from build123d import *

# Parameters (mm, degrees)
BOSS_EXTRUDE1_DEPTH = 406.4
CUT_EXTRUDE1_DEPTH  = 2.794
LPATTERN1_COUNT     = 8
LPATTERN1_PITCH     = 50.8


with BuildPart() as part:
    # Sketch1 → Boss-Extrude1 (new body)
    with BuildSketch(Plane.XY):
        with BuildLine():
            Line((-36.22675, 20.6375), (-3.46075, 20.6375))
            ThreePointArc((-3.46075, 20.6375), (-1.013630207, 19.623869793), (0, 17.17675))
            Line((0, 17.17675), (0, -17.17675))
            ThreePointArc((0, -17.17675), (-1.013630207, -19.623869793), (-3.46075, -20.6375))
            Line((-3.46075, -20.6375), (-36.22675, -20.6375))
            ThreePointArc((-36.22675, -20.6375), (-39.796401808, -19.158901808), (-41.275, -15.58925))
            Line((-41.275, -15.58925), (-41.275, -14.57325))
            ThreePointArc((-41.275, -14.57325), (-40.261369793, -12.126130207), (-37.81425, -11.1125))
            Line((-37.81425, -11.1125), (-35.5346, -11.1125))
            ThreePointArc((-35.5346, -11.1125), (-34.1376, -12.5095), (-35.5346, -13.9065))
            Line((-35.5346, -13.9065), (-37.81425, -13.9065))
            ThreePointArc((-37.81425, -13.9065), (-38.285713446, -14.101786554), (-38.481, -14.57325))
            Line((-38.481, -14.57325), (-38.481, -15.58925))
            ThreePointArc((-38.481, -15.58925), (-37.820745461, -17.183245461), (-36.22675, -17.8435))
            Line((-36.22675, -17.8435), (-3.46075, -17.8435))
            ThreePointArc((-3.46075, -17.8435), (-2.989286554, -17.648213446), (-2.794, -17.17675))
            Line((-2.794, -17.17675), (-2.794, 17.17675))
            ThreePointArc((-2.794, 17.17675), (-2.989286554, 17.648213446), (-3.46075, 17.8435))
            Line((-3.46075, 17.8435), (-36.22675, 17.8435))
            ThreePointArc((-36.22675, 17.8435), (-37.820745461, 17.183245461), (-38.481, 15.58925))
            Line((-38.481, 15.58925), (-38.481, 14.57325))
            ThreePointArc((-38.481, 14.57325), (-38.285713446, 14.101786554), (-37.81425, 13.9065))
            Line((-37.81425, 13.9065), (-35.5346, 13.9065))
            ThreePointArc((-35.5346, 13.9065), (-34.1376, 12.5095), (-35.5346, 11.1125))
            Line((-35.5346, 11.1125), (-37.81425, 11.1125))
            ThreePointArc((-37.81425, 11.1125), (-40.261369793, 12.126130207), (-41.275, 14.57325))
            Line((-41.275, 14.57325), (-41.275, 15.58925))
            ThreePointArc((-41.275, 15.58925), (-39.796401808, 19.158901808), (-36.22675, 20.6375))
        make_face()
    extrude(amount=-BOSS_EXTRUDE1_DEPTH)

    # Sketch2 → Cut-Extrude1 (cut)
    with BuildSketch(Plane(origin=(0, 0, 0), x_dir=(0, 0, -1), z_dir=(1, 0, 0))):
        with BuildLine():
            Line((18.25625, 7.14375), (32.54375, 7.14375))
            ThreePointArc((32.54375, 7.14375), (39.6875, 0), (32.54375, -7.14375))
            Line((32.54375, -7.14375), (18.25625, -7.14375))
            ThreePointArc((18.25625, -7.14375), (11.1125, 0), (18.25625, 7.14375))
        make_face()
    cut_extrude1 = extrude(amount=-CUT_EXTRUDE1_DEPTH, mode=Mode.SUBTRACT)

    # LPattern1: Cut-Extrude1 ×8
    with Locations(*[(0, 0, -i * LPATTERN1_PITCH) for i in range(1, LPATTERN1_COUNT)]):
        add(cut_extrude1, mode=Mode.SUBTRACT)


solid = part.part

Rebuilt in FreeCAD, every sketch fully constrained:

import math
import FreeCAD as App
import Part
import Sketcher

V = App.Vector
Q = App.Units.Quantity

doc = App.newDocument("Part")
body = doc.addObject("PartDesign::Body", "Body")

# Sketch on XY plane
sketch1 = body.newObject("Sketcher::SketchObject", "Sketch")
sketch1.AttachmentSupport = (doc.getObject("XY_Plane"), [""])
sketch1.MapMode = "FlatFace"
sketch1.addGeometry(Part.LineSegment(V(-3.5, 20.6, 0), V(-36.2, 20.6, 0)), False)
sketch1.addGeometry(Part.ArcOfCircle(Part.Circle(V(-36.2, 15.6, 0), V(0, 0, 1), 5), math.radians(90), math.radians(180)), False)
sketch1.addGeometry(Part.LineSegment(V(-41.3, 15.6, 0), V(-41.3, 14.6, 0)), False)
sketch1.addGeometry(Part.ArcOfCircle(Part.Circle(V(-37.8, 14.6, 0), V(0, 0, 1), 3.5), math.radians(180), math.radians(270)), False)
sketch1.addGeometry(Part.LineSegment(V(-37.8, 11.1, 0), V(-35.5, 11.1, 0)), False)
sketch1.addGeometry(Part.ArcOfCircle(Part.Circle(V(-35.5, 12.5, 0), V(0, 0, 1), 1.4), math.radians(-90), math.radians(90)), False)
sketch1.addGeometry(Part.LineSegment(V(-35.5, 13.9, 0), V(-37.8, 13.9, 0)), False)
sketch1.addGeometry(Part.ArcOfCircle(Part.Circle(V(-37.8, 14.6, 0), V(0, 0, 1), 0.7), math.radians(-180), math.radians(-90)), False)
sketch1.addGeometry(Part.LineSegment(V(-38.5, 14.6, 0), V(-38.5, 15.6, 0)), False)
sketch1.addGeometry(Part.ArcOfCircle(Part.Circle(V(-36.2, 15.6, 0), V(0, 0, 1), 2.3), math.radians(90), math.radians(180)), False)
sketch1.addGeometry(Part.LineSegment(V(-36.2, 17.8, 0), V(-3.5, 17.8, 0)), False)
sketch1.addGeometry(Part.ArcOfCircle(Part.Circle(V(-3.5, 17.2, 0), V(0, 0, 1), 0.7), math.radians(0), math.radians(90)), False)
sketch1.addGeometry(Part.LineSegment(V(-2.8, 17.2, 0), V(-2.8, -17.2, 0)), False)
sketch1.addGeometry(Part.ArcOfCircle(Part.Circle(V(-3.5, -17.2, 0), V(0, 0, 1), 0.7), math.radians(-90), math.radians(0)), False)
sketch1.addGeometry(Part.LineSegment(V(-3.5, -17.8, 0), V(-36.2, -17.8, 0)), False)
sketch1.addGeometry(Part.ArcOfCircle(Part.Circle(V(-36.2, -15.6, 0), V(0, 0, 1), 2.3), math.radians(-180), math.radians(-90)), False)
sketch1.addGeometry(Part.LineSegment(V(-38.5, -15.6, 0), V(-38.5, -14.6, 0)), False)
sketch1.addGeometry(Part.ArcOfCircle(Part.Circle(V(-37.8, -14.6, 0), V(0, 0, 1), 0.7), math.radians(90), math.radians(180)), False)
sketch1.addGeometry(Part.LineSegment(V(-37.8, -13.9, 0), V(-35.5, -13.9, 0)), False)
sketch1.addGeometry(Part.ArcOfCircle(Part.Circle(V(-35.5, -12.5, 0), V(0, 0, 1), 1.4), math.radians(-90), math.radians(90)), False)
sketch1.addGeometry(Part.LineSegment(V(-35.5, -11.1, 0), V(-37.8, -11.1, 0)), False)
sketch1.addGeometry(Part.ArcOfCircle(Part.Circle(V(-37.8, -14.6, 0), V(0, 0, 1), 3.5), math.radians(90), math.radians(180)), False)
sketch1.addGeometry(Part.LineSegment(V(-41.3, -14.6, 0), V(-41.3, -15.6, 0)), False)
sketch1.addGeometry(Part.ArcOfCircle(Part.Circle(V(-36.2, -15.6, 0), V(0, 0, 1), 5), math.radians(180), math.radians(270)), False)
sketch1.addGeometry(Part.LineSegment(V(-36.2, -20.6, 0), V(-3.5, -20.6, 0)), False)
sketch1.addGeometry(Part.ArcOfCircle(Part.Circle(V(-3.5, -17.2, 0), V(0, 0, 1), 3.5), math.radians(-90), math.radians(0)), False)
sketch1.addGeometry(Part.LineSegment(V(0, -17.2, 0), V(0, 17.2, 0)), False)
sketch1.addGeometry(Part.ArcOfCircle(Part.Circle(V(-3.5, 17.2, 0), V(0, 0, 1), 3.5), math.radians(0), math.radians(90)), False)
sketch1.addConstraint(Sketcher.Constraint("Tangent", 0, 2, 1, 1))
sketch1.addConstraint(Sketcher.Constraint("Tangent", 1, 2, 2, 1))
sketch1.addConstraint(Sketcher.Constraint("Tangent", 2, 2, 3, 1))
sketch1.addConstraint(Sketcher.Constraint("Tangent", 3, 2, 4, 1))
sketch1.addConstraint(Sketcher.Constraint("Tangent", 4, 2, 5, 1))
sketch1.addConstraint(Sketcher.Constraint("Tangent", 5, 2, 6, 1))
sketch1.addConstraint(Sketcher.Constraint("Tangent", 6, 2, 7, 2))
sketch1.addConstraint(Sketcher.Constraint("Tangent", 7, 1, 8, 1))
sketch1.addConstraint(Sketcher.Constraint("Tangent", 8, 2, 9, 2))
sketch1.addConstraint(Sketcher.Constraint("Tangent", 9, 1, 10, 1))
sketch1.addConstraint(Sketcher.Constraint("Tangent", 10, 2, 11, 2))
sketch1.addConstraint(Sketcher.Constraint("Tangent", 11, 1, 12, 1))
sketch1.addConstraint(Sketcher.Constraint("Tangent", 12, 2, 13, 2))
sketch1.addConstraint(Sketcher.Constraint("Tangent", 13, 1, 14, 1))
sketch1.addConstraint(Sketcher.Constraint("Tangent", 14, 2, 15, 2))
sketch1.addConstraint(Sketcher.Constraint("Tangent", 15, 1, 16, 1))
sketch1.addConstraint(Sketcher.Constraint("Tangent", 16, 2, 17, 2))
sketch1.addConstraint(Sketcher.Constraint("Tangent", 17, 1, 18, 1))
sketch1.addConstraint(Sketcher.Constraint("Tangent", 18, 2, 19, 1))
sketch1.addConstraint(Sketcher.Constraint("Tangent", 19, 2, 20, 1))
sketch1.addConstraint(Sketcher.Constraint("Tangent", 20, 2, 21, 1))
sketch1.addConstraint(Sketcher.Constraint("Tangent", 21, 2, 22, 1))
sketch1.addConstraint(Sketcher.Constraint("Tangent", 22, 2, 23, 1))
sketch1.addConstraint(Sketcher.Constraint("Tangent", 23, 2, 24, 1))
sketch1.addConstraint(Sketcher.Constraint("Tangent", 24, 2, 25, 1))
sketch1.addConstraint(Sketcher.Constraint("Tangent", 25, 2, 26, 1))
sketch1.addConstraint(Sketcher.Constraint("Tangent", 26, 2, 27, 1))
sketch1.addConstraint(Sketcher.Constraint("Tangent", 27, 2, 0, 1))
sketch1.addConstraint(Sketcher.Constraint("Horizontal", 0))
sketch1.addConstraint(Sketcher.Constraint("Vertical", 2))
sketch1.addConstraint(Sketcher.Constraint("Horizontal", 4))
sketch1.addConstraint(Sketcher.Constraint("Horizontal", 6))
sketch1.addConstraint(Sketcher.Constraint("Vertical", 8))
sketch1.addConstraint(Sketcher.Constraint("Horizontal", 10))
sketch1.addConstraint(Sketcher.Constraint("Vertical", 12))
sketch1.addConstraint(Sketcher.Constraint("Horizontal", 14))
sketch1.addConstraint(Sketcher.Constraint("Vertical", 16))
sketch1.addConstraint(Sketcher.Constraint("Horizontal", 18))
sketch1.addConstraint(Sketcher.Constraint("Horizontal", 20))
sketch1.addConstraint(Sketcher.Constraint("Vertical", 22))
sketch1.addConstraint(Sketcher.Constraint("Horizontal", 24))
sketch1.addConstraint(Sketcher.Constraint("Vertical", 26))
sketch1.addConstraint(Sketcher.Constraint("Coincident", 7, 3, 3, 3))
sketch1.addConstraint(Sketcher.Constraint("Coincident", 9, 3, 1, 3))
sketch1.addConstraint(Sketcher.Constraint("Coincident", 21, 3, 17, 3))
sketch1.addConstraint(Sketcher.Constraint("Coincident", 23, 3, 15, 3))
sketch1.addConstraint(Sketcher.Constraint("Coincident", 25, 3, 13, 3))
sketch1.addConstraint(Sketcher.Constraint("Coincident", 27, 3, 11, 3))
sketch1.addConstraint(Sketcher.Constraint("Equal", 7, 11))
sketch1.addConstraint(Sketcher.Constraint("Equal", 11, 13))
sketch1.addConstraint(Sketcher.Constraint("Equal", 9, 15))
sketch1.addConstraint(Sketcher.Constraint("Equal", 13, 17))
sketch1.addConstraint(Sketcher.Constraint("Symmetric", 25, 2, 26, 2, -1, 1))
sketch1.addConstraint(Sketcher.Constraint("Symmetric", 3, 3, 17, 3, -1))
sketch1.addConstraint(Sketcher.Constraint("Vertical", 5, 3, 19, 3))
sketch1.addConstraint(Sketcher.Constraint("Radius", 5, Q("0.055 in")))
sketch1.addConstraint(Sketcher.Constraint("DistanceX", 0, 2, 0, 1, Q("1.29 in")))
sketch1.addConstraint(Sketcher.Constraint("DistanceY", 2, 2, 2, 1, Q("0.04 in")))
sketch1.addConstraint(Sketcher.Constraint("DistanceY", 13, 3, 9, 3, Q("1.29 in")))
sketch1.addConstraint(Sketcher.Constraint("DistanceY", 5, 3, 0, 2, Q("0.32 in")))
sketch1.addConstraint(Sketcher.Constraint("DistanceY", 12, 2, 12, 1, Q("1.3525 in")))
sketch1.addConstraint(Sketcher.Constraint("DistanceX", 5, 3, -1, 1, Q("1.399 in")))
pad1 = body.newObject("PartDesign::Pad", "Pad")
pad1.Profile = sketch1
pad1.Length = Q("16 in")
pad1.Reversed = True

# Sketch on YZ plane
sketch2 = body.newObject("Sketcher::SketchObject", "Sketch001")
sketch2.AttachmentSupport = (doc.getObject("YZ_Plane"), [""])
sketch2.MapMode = "FlatFace"
sketch2.addGeometry(Part.LineSegment(V(7, -33, 0), V(7, -18, 0)), False)
sketch2.addGeometry(Part.ArcOfCircle(Part.Circle(V(0, -18, 0), V(0, 0, 1), 7), math.radians(0), math.radians(180)), False)
sketch2.addGeometry(Part.LineSegment(V(-7, -18, 0), V(-7, -33, 0)), False)
sketch2.addGeometry(Part.ArcOfCircle(Part.Circle(V(0, -33, 0), V(0, 0, 1), 7), math.radians(180), math.radians(360)), False)
sketch2.addConstraint(Sketcher.Constraint("Tangent", 0, 2, 1, 1))
sketch2.addConstraint(Sketcher.Constraint("Tangent", 1, 2, 2, 1))
sketch2.addConstraint(Sketcher.Constraint("Tangent", 2, 2, 3, 1))
sketch2.addConstraint(Sketcher.Constraint("Tangent", 3, 2, 0, 1))
sketch2.addConstraint(Sketcher.Constraint("Vertical", 0))
sketch2.addConstraint(Sketcher.Constraint("Vertical", 2))
sketch2.addConstraint(Sketcher.Constraint("PointOnObject", 1, 3, -2))
sketch2.addConstraint(Sketcher.Constraint("Radius", 1, Q("0.28125 in")))
sketch2.addConstraint(Sketcher.Constraint("DistanceY", 0, 1, 0, 2, Q("0.5625 in")))
sketch2.addConstraint(Sketcher.Constraint("DistanceY", 1, 3, -1, 1, Q("0.71875 in")))
pocket1 = body.newObject("PartDesign::Pocket", "Pocket")
pocket1.Profile = sketch2
pocket1.Length = Q("0.11 in")
doc.recompute()

linearpattern = body.newObject("PartDesign::LinearPattern", "LinearPattern")
linearpattern.Originals = [pocket1]
linearpattern.Direction = (doc.getObject("Z_Axis"), [""])
linearpattern.Mode = "offset"
linearpattern.Offset = Q("2 in")
linearpattern.Occurrences = 8
linearpattern.Reversed = True
body.Tip = linearpattern

doc.recompute()
